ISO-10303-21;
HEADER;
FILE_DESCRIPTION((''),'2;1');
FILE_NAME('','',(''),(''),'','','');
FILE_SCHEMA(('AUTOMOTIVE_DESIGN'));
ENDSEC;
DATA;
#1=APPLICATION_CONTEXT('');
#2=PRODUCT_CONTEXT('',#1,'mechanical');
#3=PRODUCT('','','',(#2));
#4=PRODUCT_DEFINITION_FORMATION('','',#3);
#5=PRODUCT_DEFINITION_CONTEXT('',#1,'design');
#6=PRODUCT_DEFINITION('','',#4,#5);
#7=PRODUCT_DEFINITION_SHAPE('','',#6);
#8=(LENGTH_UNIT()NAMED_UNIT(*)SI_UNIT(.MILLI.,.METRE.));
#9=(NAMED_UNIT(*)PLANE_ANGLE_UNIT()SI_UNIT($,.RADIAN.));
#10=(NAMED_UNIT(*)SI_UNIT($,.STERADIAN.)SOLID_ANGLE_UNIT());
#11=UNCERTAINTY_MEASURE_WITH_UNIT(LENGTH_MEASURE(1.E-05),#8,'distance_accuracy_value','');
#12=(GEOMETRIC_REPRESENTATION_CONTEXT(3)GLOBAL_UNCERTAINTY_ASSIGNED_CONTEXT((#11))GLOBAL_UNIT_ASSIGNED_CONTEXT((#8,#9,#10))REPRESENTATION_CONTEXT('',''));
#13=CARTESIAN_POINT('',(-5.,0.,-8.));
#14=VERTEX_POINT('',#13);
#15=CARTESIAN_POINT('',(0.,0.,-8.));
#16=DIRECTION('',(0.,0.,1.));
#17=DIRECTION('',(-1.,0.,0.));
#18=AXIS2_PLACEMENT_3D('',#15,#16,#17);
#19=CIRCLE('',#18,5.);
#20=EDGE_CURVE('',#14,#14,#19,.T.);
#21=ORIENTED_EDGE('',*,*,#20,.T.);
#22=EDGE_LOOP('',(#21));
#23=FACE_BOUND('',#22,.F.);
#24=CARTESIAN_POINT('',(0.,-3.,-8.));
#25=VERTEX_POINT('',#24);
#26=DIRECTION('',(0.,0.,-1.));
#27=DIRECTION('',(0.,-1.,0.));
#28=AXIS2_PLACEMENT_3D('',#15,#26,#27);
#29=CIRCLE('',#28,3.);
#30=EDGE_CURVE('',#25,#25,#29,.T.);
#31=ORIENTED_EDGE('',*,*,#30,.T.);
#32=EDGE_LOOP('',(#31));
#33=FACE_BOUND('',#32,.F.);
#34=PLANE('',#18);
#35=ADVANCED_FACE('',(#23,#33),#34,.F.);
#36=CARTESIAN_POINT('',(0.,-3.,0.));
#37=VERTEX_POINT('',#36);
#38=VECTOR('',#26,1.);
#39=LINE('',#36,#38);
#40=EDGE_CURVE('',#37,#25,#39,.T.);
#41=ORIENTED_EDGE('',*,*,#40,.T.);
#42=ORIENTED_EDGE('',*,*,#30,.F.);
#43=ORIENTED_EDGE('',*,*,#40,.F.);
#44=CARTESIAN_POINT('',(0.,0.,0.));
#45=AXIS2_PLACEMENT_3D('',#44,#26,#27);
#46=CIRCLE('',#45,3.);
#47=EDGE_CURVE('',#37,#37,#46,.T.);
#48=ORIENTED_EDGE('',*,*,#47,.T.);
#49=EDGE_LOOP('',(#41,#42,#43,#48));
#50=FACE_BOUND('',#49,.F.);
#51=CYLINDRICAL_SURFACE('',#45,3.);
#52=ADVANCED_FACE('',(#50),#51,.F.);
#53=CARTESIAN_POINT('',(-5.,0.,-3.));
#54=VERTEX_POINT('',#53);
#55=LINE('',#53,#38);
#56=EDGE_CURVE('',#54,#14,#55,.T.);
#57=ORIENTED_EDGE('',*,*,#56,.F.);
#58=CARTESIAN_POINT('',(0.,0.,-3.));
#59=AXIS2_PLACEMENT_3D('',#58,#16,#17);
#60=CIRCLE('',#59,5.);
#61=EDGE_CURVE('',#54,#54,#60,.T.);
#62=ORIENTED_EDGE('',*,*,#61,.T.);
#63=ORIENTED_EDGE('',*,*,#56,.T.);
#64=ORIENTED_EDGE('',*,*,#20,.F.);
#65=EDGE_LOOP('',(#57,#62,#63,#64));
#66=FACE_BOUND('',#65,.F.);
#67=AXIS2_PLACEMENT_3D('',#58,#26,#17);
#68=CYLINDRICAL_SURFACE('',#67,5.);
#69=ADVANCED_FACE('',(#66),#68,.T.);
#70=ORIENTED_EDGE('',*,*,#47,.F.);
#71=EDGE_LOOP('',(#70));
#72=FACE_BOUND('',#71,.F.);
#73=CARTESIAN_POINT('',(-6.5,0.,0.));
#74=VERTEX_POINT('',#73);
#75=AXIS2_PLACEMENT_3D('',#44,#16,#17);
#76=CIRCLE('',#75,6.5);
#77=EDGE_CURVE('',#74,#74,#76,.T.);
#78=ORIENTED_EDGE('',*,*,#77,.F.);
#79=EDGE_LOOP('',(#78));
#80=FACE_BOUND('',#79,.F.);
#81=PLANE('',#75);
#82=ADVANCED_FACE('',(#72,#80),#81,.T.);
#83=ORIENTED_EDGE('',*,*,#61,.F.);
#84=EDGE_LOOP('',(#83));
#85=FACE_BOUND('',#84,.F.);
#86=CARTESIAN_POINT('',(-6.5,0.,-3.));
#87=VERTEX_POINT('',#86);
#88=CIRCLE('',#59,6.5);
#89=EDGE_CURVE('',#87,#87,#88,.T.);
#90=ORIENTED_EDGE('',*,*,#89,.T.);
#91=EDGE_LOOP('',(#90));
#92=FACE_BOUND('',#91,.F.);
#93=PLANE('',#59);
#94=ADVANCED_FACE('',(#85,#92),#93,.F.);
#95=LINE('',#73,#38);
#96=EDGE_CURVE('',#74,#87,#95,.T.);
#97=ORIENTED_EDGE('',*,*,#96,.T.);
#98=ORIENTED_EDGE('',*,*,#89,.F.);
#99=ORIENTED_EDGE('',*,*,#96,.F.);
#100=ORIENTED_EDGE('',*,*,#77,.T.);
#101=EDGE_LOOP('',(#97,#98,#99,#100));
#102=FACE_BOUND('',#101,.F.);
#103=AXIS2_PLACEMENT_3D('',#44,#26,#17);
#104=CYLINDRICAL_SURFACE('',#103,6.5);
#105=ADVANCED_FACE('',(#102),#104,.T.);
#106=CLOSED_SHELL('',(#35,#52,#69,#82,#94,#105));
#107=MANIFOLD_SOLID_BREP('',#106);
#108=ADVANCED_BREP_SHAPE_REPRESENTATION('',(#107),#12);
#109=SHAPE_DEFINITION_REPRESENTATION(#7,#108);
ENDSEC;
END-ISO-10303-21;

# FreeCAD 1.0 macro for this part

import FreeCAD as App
import Part
import Sketcher
Q = App.Units.Quantity

doc = App.newDocument("Part")
body = doc.addObject("PartDesign::Body", "Body")

# Sketch on XZ plane
sketch1 = body.newObject("Sketcher::SketchObject", "Sketch")
sketch1.AttachmentSupport = (doc.getObject("XZ_Plane"), [""])
sketch1.MapMode = "FlatFace"
sketch1.addGeometry([
    Part.LineSegment(App.Vector(-6.5, 0, 0), App.Vector(0, 0, 0)),  # 0
    Part.LineSegment(App.Vector(0, 0, 0), App.Vector(0, -8, 0)),  # 1
    Part.LineSegment(App.Vector(0, -8, 0), App.Vector(-5, -8, 0)),  # 2
    Part.LineSegment(App.Vector(-5, -8, 0), App.Vector(-5, -3, 0)),  # 3
    Part.LineSegment(App.Vector(-5, -3, 0), App.Vector(-6.5, -3, 0)),  # 4
    Part.LineSegment(App.Vector(-6.5, -3, 0), App.Vector(-6.5, 0, 0)),  # 5
], False)
sketch1.addConstraint([
    Sketcher.Constraint("Coincident", 0, 2, 1, 1),
    Sketcher.Constraint("Coincident", 1, 2, 2, 1),
    Sketcher.Constraint("Coincident", 2, 2, 3, 1),
    Sketcher.Constraint("Coincident", 3, 2, 4, 1),
    Sketcher.Constraint("Coincident", 4, 2, 5, 1),
    Sketcher.Constraint("Coincident", 5, 2, 0, 1),
    Sketcher.Constraint("Horizontal", 0),
    Sketcher.Constraint("Vertical", 1),
    Sketcher.Constraint("Horizontal", 2),
    Sketcher.Constraint("Vertical", 3),
    Sketcher.Constraint("Horizontal", 4),
    Sketcher.Constraint("Vertical", 5),
    Sketcher.Constraint("Coincident", 0, 2, -1, 1),
    Sketcher.Constraint("Equal", 2, 3),
    Sketcher.Constraint("DistanceX", 2, 2, 2, 1, Q("5 mm")),
    Sketcher.Constraint("DistanceY", 5, 1, 5, 2, Q("3 mm")),
    Sketcher.Constraint("DistanceX", 0, 1, 0, 2, Q("6.5 mm")),
])
revolution = body.newObject("PartDesign::Revolution", "Revolution")
revolution.Profile = sketch1
revolution.ReferenceAxis = (sketch1, ["V_Axis"])
revolution.Angle = 360

# Sketch on XY plane
sketch2 = body.newObject("Sketcher::SketchObject", "Sketch001")
sketch2.AttachmentSupport = (doc.getObject("XY_Plane"), [""])
sketch2.MapMode = "FlatFace"
sketch2.addGeometry(Part.Circle(App.Vector(0, 0, 0), App.Vector(0, 0, 1), 3), False)
sketch2.addConstraint([
    Sketcher.Constraint("Coincident", 0, 3, -1, 1),
    Sketcher.Constraint("Diameter", 0, Q("6 mm")),
])
doc.recompute()
hole = body.newObject("PartDesign::Hole", "Hole")
hole.Profile = sketch2
hole.ThreadType = "None"
hole.Diameter = 6
hole.DepthType = "ThroughAll"

doc.recompute()
